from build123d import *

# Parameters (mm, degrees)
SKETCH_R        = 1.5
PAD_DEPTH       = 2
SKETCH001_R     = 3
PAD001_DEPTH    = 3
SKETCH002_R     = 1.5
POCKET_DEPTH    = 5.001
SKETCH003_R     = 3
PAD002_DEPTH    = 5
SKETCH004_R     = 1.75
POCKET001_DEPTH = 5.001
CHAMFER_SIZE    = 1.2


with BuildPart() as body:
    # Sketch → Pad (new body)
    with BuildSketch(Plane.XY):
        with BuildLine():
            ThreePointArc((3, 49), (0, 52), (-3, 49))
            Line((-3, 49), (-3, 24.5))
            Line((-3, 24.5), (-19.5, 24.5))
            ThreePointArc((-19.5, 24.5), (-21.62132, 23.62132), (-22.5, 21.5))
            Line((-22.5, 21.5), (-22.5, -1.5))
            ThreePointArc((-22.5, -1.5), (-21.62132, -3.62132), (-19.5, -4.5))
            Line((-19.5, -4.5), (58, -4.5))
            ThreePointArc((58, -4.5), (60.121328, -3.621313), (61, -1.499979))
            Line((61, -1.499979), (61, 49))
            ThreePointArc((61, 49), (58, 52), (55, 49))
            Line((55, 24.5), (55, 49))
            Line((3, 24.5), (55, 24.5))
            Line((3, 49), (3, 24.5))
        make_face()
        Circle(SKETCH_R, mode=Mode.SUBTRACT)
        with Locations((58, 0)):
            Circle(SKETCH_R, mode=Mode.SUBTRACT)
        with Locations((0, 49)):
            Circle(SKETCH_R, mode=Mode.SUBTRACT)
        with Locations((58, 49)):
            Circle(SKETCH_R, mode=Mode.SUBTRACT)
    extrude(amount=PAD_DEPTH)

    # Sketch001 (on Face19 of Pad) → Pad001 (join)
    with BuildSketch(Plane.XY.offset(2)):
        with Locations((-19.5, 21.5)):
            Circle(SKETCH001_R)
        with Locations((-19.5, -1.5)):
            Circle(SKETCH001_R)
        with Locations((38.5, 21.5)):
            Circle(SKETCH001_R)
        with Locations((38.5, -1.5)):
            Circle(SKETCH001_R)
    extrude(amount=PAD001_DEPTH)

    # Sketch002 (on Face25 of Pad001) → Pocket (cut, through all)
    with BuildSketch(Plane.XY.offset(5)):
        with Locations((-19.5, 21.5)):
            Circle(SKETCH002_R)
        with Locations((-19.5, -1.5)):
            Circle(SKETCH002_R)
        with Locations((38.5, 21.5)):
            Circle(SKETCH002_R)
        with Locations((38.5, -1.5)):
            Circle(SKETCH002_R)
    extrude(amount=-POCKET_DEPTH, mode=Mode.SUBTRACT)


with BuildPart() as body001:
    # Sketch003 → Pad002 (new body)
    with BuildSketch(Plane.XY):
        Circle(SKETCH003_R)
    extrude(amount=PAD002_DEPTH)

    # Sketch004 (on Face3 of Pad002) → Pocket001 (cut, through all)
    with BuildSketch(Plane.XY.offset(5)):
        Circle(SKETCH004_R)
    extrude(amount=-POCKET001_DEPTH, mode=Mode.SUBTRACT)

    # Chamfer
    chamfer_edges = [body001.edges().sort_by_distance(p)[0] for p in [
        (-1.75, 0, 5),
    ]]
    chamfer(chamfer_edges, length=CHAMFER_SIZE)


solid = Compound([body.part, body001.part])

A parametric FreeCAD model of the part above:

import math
import FreeCAD as App
import Part
import Sketcher

V = App.Vector
Q = App.Units.Quantity


def edges_at(feature, points):
    """Names of the edges that pass closest to the given points."""
    edges = feature.Shape.Edges
    near = lambda p: min(range(len(edges)), key=lambda i: edges[i].distToShape(Part.Vertex(*p))[0])
    return sorted({f"Edge{near(p) + 1}" for p in points})

doc = App.newDocument("Part")
body = doc.addObject("PartDesign::Body", "Body")

sketch1 = doc.addObject("Sketcher::SketchObject", "Sketch")
body.addObject(sketch1)
sketch1.AttachmentSupport = (doc.XY_Plane, [""])
sketch1.MapMode = "FlatFace"
sketch1.addGeometry(Part.ArcOfCircle(Part.Circle(V(0, 49, 0), V(0, 0, 1), 3), math.radians(0), math.radians(180)), False)
sketch1.addGeometry(Part.LineSegment(V(-3, 49, 0), V(-3, 24.5, 0)), False)
sketch1.addGeometry(Part.LineSegment(V(-3, 24.5, 0), V(-19.5, 24.5, 0)), False)
sketch1.addGeometry(Part.ArcOfCircle(Part.Circle(V(-19.5, 21.5, 0), V(0, 0, 1), 3), math.radians(90), math.radians(180)), False)
sketch1.addGeometry(Part.LineSegment(V(-22.5, 21.5, 0), V(-22.5, -1.5, 0)), False)
sketch1.addGeometry(Part.ArcOfCircle(Part.Circle(V(-19.5, -1.5, 0), V(0, 0, 1), 3), math.radians(-180), math.radians(-90)), False)
sketch1.addGeometry(Part.LineSegment(V(-19.5, -4.5, 0), V(58, -4.5, 0)), False)
sketch1.addGeometry(Part.ArcOfCircle(Part.Circle(V(58, -1.5, 0), V(0, 0, 1), 3), math.radians(-90), math.radians(0)), False)
sketch1.addGeometry(Part.LineSegment(V(61, -1.5, 0), V(61, 49, 0)), False)
sketch1.addGeometry(Part.ArcOfCircle(Part.Circle(V(58, 49, 0), V(0, 0, 1), 3), math.radians(0), math.radians(180)), False)
sketch1.addGeometry(Part.LineSegment(V(55, 49, 0), V(55, 24.5, 0)), False)
sketch1.addGeometry(Part.LineSegment(V(55, 24.5, 0), V(3, 24.5, 0)), False)
sketch1.addGeometry(Part.LineSegment(V(3, 24.5, 0), V(3, 49, 0)), False)
sketch1.addGeometry(Part.Circle(V(0, 0, 0), V(0, 0, 1), 1.5), False)
sketch1.addGeometry(Part.Circle(V(58, 0, 0), V(0, 0, 1), 1.5), False)
sketch1.addGeometry(Part.Circle(V(0, 49, 0), V(0, 0, 1), 1.5), False)
sketch1.addGeometry(Part.Circle(V(58, 49, 0), V(0, 0, 1), 1.5), False)
sketch1.addConstraint(Sketcher.Constraint("Tangent", 0, 2, 1, 1))
sketch1.addConstraint(Sketcher.Constraint("Coincident", 1, 2, 2, 1))
sketch1.addConstraint(Sketcher.Constraint("Tangent", 2, 2, 3, 1))
sketch1.addConstraint(Sketcher.Constraint("Tangent", 3, 2, 4, 1))
sketch1.addConstraint(Sketcher.Constraint("Tangent", 4, 2, 5, 1))
sketch1.addConstraint(Sketcher.Constraint("Tangent", 5, 2, 6, 1))
sketch1.addConstraint(Sketcher.Constraint("Tangent", 6, 2, 7, 1))
sketch1.addConstraint(Sketcher.Constraint("Coincident", 7, 2, 8, 1))
sketch1.addConstraint(Sketcher.Constraint("Tangent", 8, 2, 9, 1))
sketch1.addConstraint(Sketcher.Constraint("Tangent", 9, 2, 10, 1))
sketch1.addConstraint(Sketcher.Constraint("Coincident", 10, 2, 11, 1))
sketch1.addConstraint(Sketcher.Constraint("Coincident", 11, 2, 12, 1))
sketch1.addConstraint(Sketcher.Constraint("Tangent", 12, 2, 0, 1))
sketch1.addConstraint(Sketcher.Constraint("Vertical", 1))
sketch1.addConstraint(Sketcher.Constraint("Horizontal", 2))
sketch1.addConstraint(Sketcher.Constraint("Vertical", 4))
sketch1.addConstraint(Sketcher.Constraint("Horizontal", 6))
sketch1.addConstraint(Sketcher.Constraint("Vertical", 8))
sketch1.addConstraint(Sketcher.Constraint("Vertical", 10))
sketch1.addConstraint(Sketcher.Constraint("Horizontal", 11))
sketch1.addConstraint(Sketcher.Constraint("Vertical", 12))
sketch1.addConstraint(Sketcher.Constraint("Coincident", 13, 3, -1, 1))
sketch1.addConstraint(Sketcher.Constraint("Coincident", 15, 3, 0, 3))
sketch1.addConstraint(Sketcher.Constraint("Coincident", 16, 3, 9, 3))
sketch1.addConstraint(Sketcher.Constraint("Equal", 0, 3))
sketch1.addConstraint(Sketcher.Constraint("Equal", 3, 5))
sketch1.addConstraint(Sketcher.Constraint("Equal", 5, 7))
sketch1.addConstraint(Sketcher.Constraint("Equal", 7, 9))
sketch1.addConstraint(Sketcher.Constraint("Equal", 13, 14))
sketch1.addConstraint(Sketcher.Constraint("Equal", 14, 15))
sketch1.addConstraint(Sketcher.Constraint("Equal", 15, 16))
sketch1.addConstraint(Sketcher.Constraint("Symmetric", 1, 2, 11, 2, -2))
sketch1.addConstraint(Sketcher.Constraint("PointOnObject", 14, 3, -1))
sketch1.addConstraint(Sketcher.Constraint("Horizontal", 0, 3, 9, 3))
sketch1.addConstraint(Sketcher.Constraint("Vertical", 9, 3, 14, 3))
sketch1.addConstraint(Sketcher.Constraint("Diameter", 13, Q("3 mm")))
sketch1.addConstraint(Sketcher.Constraint("Radius", 0, Q("3 mm")))
sketch1.addConstraint(Sketcher.Constraint("DistanceX", 11, 2, 11, 1, Q("52 mm")))
sketch1.addConstraint(Sketcher.Constraint("DistanceY", 4, 2, 4, 1, Q("23 mm")))
sketch1.addConstraint(Sketcher.Constraint("DistanceX", 2, 2, 2, 1, Q("16.5 mm")))
sketch1.addConstraint(Sketcher.Constraint("DistanceY", 1, 2, 1, 1, Q("24.5 mm")))
sketch1.addConstraint(Sketcher.Constraint("DistanceY", -1, 1, 0, 3, Q("49 mm")))
sketch1.addConstraint(Sketcher.Constraint("DistanceY", 8, 1, 8, 2, Q("50.499979 mm")))
pad1 = doc.addObject("PartDesign::Pad", "Pad")
body.addObject(pad1)
pad1.Profile = sketch1
pad1.Length = 2

sketch2 = doc.addObject("Sketcher::SketchObject", "Sketch001")
body.addObject(sketch2)
sketch2.AttachmentSupport = (doc.XY_Plane, [""])
sketch2.MapMode = "FlatFace"
sketch2.AttachmentOffset = App.Placement(V(0, 0, 2), App.Rotation())
sketch2.addGeometry(Part.Circle(V(-19.5, 21.5, 0), V(0, 0, 1), 3), False)
sketch2.addGeometry(Part.Circle(V(-19.5, -1.5, 0), V(0, 0, 1), 3), False)
sketch2.addGeometry(Part.Circle(V(38.5, 21.5, 0), V(0, 0, 1), 3), False)
sketch2.addGeometry(Part.Circle(V(38.5, -1.5, 0), V(0, 0, 1), 3), False)
sketch2.addConstraint(Sketcher.Constraint("Equal", 0, 1))
sketch2.addConstraint(Sketcher.Constraint("Equal", 1, 2))
sketch2.addConstraint(Sketcher.Constraint("Equal", 2, 3))
sketch2.addConstraint(Sketcher.Constraint("Horizontal", 0, 3, 2, 3))
sketch2.addConstraint(Sketcher.Constraint("Horizontal", 1, 3, 3, 3))
sketch2.addConstraint(Sketcher.Constraint("Vertical", 0, 3, 1, 3))
sketch2.addConstraint(Sketcher.Constraint("Vertical", 2, 3, 3, 3))
sketch2.addConstraint(Sketcher.Constraint("Diameter", 0, Q("6 mm")))
sketch2.addConstraint(Sketcher.Constraint("DistanceY", 1, 3, 0, 3, Q("23 mm")))
sketch2.addConstraint(Sketcher.Constraint("DistanceX", 0, 3, 2, 3, Q("58 mm")))
sketch2.addConstraint(Sketcher.Constraint("DistanceX", 0, 3, -1, 1, Q("19.5 mm")))
sketch2.addConstraint(Sketcher.Constraint("DistanceY", -1, 1, 0, 3, Q("21.5 mm")))
pad2 = doc.addObject("PartDesign::Pad", "Pad001")
body.addObject(pad2)
pad2.Profile = sketch2
pad2.Length = 3

sketch3 = doc.addObject("Sketcher::SketchObject", "Sketch002")
body.addObject(sketch3)
sketch3.AttachmentSupport = (doc.XY_Plane, [""])
sketch3.MapMode = "FlatFace"
sketch3.AttachmentOffset = App.Placement(V(0, 0, 5), App.Rotation())
sketch3.addGeometry(Part.Circle(V(-19.5, 21.5, 0), V(0, 0, 1), 1.5), False)
sketch3.addGeometry(Part.Circle(V(-19.5, -1.5, 0), V(0, 0, 1), 1.5), False)
sketch3.addGeometry(Part.Circle(V(38.5, 21.5, 0), V(0, 0, 1), 1.5), False)
sketch3.addGeometry(Part.Circle(V(38.5, -1.5, 0), V(0, 0, 1), 1.5), False)
sketch3.addConstraint(Sketcher.Constraint("Equal", 0, 1))
sketch3.addConstraint(Sketcher.Constraint("Equal", 1, 2))
sketch3.addConstraint(Sketcher.Constraint("Equal", 2, 3))
sketch3.addConstraint(Sketcher.Constraint("Horizontal", 0, 3, 2, 3))
sketch3.addConstraint(Sketcher.Constraint("Horizontal", 1, 3, 3, 3))
sketch3.addConstraint(Sketcher.Constraint("Vertical", 0, 3, 1, 3))
sketch3.addConstraint(Sketcher.Constraint("Vertical", 2, 3, 3, 3))
sketch3.addConstraint(Sketcher.Constraint("Diameter", 0, Q("3 mm")))
sketch3.addConstraint(Sketcher.Constraint("DistanceY", 1, 3, 0, 3, Q("23 mm")))
sketch3.addConstraint(Sketcher.Constraint("DistanceX", 0, 3, 2, 3, Q("58 mm")))
sketch3.addConstraint(Sketcher.Constraint("DistanceX", 0, 3, -1, 1, Q("19.5 mm")))
sketch3.addConstraint(Sketcher.Constraint("DistanceY", -1, 1, 0, 3, Q("21.5 mm")))
pocket1 = doc.addObject("PartDesign::Pocket", "Pocket")
body.addObject(pocket1)
pocket1.Profile = sketch3
pocket1.Type = "ThroughAll"
body2 = doc.addObject("PartDesign::Body", "Body001")

sketch4 = doc.addObject("Sketcher::SketchObject", "Sketch003")
body2.addObject(sketch4)
sketch4.AttachmentSupport = (doc.getObject("XY_Plane001"), [""])
sketch4.MapMode = "FlatFace"
sketch4.addGeometry(Part.Circle(V(0, 0, 0), V(0, 0, 1), 3), False)
sketch4.addConstraint(Sketcher.Constraint("Coincident", 0, 3, -1, 1))
sketch4.addConstraint(Sketcher.Constraint("Diameter", 0, Q("6 mm")))
pad3 = doc.addObject("PartDesign::Pad", "Pad002")
body2.addObject(pad3)
pad3.Profile = sketch4
pad3.Length = 5

sketch5 = doc.addObject("Sketcher::SketchObject", "Sketch004")
body2.addObject(sketch5)
sketch5.AttachmentSupport = (doc.getObject("XY_Plane001"), [""])
sketch5.MapMode = "FlatFace"
sketch5.AttachmentOffset = App.Placement(V(0, 0, 5), App.Rotation())
sketch5.addGeometry(Part.Circle(V(0, 0, 0), V(0, 0, 1), 1.8), False)
sketch5.addConstraint(Sketcher.Constraint("Coincident", 0, 3, -1, 1))
sketch5.addConstraint(Sketcher.Constraint("Diameter", 0, Q("3.5 mm")))
pocket2 = doc.addObject("PartDesign::Pocket", "Pocket001")
body2.addObject(pocket2)
pocket2.Profile = sketch5
pocket2.Type = "ThroughAll"
doc.recompute()

chamfer = doc.addObject("PartDesign::Chamfer", "Chamfer")
body2.addObject(chamfer)
chamfer.Base = (pocket2, edges_at(pocket2, [(-1.75, 0, 5)]))
chamfer.Size = 1.2

doc.recompute()
